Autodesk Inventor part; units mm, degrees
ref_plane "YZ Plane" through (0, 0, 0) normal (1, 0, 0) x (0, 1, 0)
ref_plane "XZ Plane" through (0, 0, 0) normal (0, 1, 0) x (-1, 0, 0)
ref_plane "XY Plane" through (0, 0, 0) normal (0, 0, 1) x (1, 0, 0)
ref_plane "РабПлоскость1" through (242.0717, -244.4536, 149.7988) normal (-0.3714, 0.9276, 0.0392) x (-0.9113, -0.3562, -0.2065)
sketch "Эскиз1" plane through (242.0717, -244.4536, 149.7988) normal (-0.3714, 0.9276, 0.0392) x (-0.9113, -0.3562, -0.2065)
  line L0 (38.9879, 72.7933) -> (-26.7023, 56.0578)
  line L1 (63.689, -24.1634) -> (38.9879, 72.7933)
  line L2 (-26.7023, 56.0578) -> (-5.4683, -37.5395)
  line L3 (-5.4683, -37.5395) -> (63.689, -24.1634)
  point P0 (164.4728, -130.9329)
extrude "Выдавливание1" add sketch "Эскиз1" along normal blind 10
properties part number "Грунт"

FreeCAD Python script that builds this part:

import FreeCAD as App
import Part
import Sketcher
from FreeCAD import Vector

doc = App.newDocument("Part")
body = doc.addObject("PartDesign::Body", "Body")

# Sketch on an angled plane
sketch1 = body.newObject("Sketcher::SketchObject", "Sketch")
sketch1.Placement = App.Placement(Vector(242.0717, -244.4536, 149.7988), App.Rotation(Vector(-0.911323533, -0.356156521, -0.206499275), Vector(-0.177594819, -0.112422414, 0.977661128), Vector(-0.371415533, 0.927638795, 0.039201639), "ZXY"))
sketch1.addGeometry([
    Part.LineSegment(Vector(64, -24, 0), Vector(39, 73, 0)),
    Part.LineSegment(Vector(39, 73, 0), Vector(-27, 56, 0)),
    Part.LineSegment(Vector(-27, 56, 0), Vector(-5, -38, 0)),
    Part.LineSegment(Vector(-5, -38, 0), Vector(64, -24, 0)),
], False)
sketch1.addConstraint([
    Sketcher.Constraint("Coincident", 0, 2, 1, 1),
    Sketcher.Constraint("Coincident", 1, 2, 2, 1),
    Sketcher.Constraint("Coincident", 2, 2, 3, 1),
    Sketcher.Constraint("Coincident", 3, 2, 0, 1),
    Sketcher.Constraint("Perpendicular", 0, 1),
    Sketcher.Constraint("Distance", 3, 70.439),
    Sketcher.Constraint("DistanceX", -1, 1, 0, 2, 38.988),
    Sketcher.Constraint("DistanceX", -1, 1, 3, 2, 63.689),
    Sketcher.Constraint("DistanceX", 1, 2, 2, 2, 21.234),
    Sketcher.Constraint("DistanceY", 2, 2, 3, 2, 13.376),
    Sketcher.Constraint("Distance", 0, 100.0537),
    Sketcher.Constraint("DistanceY", -1, 1, 0, 2, 72.7933),
])
pad1 = body.newObject("PartDesign::Pad", "Pad")
pad1.Profile = sketch1
pad1.Length = 10

doc.recompute()
